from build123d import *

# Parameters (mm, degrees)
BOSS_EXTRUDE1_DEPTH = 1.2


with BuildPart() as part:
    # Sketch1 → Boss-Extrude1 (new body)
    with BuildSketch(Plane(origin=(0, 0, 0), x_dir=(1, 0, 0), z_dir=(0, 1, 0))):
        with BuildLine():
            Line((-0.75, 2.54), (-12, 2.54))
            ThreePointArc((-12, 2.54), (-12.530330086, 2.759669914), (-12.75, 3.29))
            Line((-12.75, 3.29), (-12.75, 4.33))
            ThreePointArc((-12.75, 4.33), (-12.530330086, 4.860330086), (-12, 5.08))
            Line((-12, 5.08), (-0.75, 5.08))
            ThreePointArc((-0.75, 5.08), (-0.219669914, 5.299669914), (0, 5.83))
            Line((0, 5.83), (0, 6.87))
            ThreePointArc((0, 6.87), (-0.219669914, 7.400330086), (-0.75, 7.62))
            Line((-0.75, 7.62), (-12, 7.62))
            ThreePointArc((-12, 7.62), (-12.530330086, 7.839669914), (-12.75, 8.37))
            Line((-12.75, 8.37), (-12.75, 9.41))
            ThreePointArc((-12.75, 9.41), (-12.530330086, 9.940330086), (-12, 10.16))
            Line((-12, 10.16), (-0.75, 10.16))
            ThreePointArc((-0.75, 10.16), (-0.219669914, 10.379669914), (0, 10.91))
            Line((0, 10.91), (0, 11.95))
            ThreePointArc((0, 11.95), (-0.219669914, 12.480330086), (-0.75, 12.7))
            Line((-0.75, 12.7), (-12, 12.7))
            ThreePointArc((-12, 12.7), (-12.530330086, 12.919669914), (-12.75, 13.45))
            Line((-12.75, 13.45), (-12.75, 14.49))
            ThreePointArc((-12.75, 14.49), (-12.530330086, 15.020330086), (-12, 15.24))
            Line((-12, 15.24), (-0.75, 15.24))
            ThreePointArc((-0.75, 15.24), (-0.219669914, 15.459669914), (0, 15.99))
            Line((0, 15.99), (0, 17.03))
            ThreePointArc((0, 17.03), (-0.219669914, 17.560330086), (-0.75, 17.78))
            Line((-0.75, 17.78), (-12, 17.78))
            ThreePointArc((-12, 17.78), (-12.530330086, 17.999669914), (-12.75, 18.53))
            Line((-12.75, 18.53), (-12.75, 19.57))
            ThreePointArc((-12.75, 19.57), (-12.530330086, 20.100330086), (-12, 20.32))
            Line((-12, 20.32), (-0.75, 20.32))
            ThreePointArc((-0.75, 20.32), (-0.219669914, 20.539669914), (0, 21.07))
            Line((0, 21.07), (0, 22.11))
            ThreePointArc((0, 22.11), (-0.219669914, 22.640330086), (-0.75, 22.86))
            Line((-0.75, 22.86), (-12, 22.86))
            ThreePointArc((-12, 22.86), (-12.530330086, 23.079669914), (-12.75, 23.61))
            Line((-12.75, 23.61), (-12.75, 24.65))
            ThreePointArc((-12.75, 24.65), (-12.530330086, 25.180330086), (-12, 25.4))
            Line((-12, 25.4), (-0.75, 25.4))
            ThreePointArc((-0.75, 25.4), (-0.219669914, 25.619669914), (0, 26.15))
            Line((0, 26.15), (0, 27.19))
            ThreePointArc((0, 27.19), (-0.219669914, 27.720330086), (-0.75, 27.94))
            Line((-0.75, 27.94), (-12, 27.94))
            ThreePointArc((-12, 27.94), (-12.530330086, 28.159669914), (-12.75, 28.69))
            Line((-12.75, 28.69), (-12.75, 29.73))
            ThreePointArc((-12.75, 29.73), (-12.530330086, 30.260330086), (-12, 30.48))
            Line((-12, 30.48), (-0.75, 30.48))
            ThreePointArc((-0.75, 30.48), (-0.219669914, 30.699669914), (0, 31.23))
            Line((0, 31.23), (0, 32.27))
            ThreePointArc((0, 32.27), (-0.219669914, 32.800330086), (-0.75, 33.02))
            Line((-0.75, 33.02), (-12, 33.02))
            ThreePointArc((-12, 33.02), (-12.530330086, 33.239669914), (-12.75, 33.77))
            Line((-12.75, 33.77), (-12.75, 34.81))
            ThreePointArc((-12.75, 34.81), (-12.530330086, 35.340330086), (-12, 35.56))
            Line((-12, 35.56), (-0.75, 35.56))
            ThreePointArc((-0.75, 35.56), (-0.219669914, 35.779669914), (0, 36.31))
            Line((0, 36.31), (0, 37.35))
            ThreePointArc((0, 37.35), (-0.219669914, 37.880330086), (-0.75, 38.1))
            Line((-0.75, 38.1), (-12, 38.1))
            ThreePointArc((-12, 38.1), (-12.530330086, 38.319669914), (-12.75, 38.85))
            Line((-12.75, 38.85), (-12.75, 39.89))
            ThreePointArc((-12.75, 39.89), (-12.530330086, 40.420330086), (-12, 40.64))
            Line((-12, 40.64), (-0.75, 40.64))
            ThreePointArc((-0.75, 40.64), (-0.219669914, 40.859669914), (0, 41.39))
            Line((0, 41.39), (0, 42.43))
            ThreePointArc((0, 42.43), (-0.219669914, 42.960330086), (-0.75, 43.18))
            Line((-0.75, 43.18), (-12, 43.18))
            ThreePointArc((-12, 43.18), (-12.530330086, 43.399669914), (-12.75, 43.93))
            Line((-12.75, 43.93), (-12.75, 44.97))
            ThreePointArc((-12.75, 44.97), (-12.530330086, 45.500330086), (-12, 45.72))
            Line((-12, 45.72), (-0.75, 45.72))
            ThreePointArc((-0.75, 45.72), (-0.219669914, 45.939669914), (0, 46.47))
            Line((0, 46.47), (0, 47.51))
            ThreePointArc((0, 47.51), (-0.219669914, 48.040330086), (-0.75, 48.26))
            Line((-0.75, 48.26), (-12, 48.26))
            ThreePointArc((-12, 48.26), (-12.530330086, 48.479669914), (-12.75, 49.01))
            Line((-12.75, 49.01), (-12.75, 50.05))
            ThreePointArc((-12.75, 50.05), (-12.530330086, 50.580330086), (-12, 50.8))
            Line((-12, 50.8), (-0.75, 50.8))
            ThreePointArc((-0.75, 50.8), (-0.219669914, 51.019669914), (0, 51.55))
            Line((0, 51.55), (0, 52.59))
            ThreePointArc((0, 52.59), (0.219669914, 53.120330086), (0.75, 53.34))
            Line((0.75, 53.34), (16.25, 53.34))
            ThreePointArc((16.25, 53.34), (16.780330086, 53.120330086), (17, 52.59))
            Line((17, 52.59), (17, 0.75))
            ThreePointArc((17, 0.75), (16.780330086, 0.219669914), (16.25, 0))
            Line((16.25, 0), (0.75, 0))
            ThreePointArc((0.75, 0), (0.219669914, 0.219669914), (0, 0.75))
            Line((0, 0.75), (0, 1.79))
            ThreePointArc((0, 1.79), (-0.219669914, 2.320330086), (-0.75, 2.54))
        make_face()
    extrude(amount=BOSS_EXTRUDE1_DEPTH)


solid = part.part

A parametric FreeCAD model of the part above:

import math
import FreeCAD as App
import Part
import Sketcher

V = App.Vector

doc = App.newDocument("Part")
body = doc.addObject("PartDesign::Body", "Body")

sketch1 = body.newObject("Sketcher::SketchObject", "Sketch")
sketch1.AttachmentSupport = (doc.getObject("XZ_Plane"), [""])
sketch1.MapMode = "FlatFace"
sketch1.addGeometry([
    Part.LineSegment(V(-12, -2.5, 0), V(-0.8, -2.5, 0)),
    Part.ArcOfCircle(Part.Circle(V(-0.8, -1.8, 0), V(0, 0, 1), 0.8), math.radians(-90), math.radians(0)),
    Part.LineSegment(V(0, -1.8, 0), V(0, -0.8, 0)),
    Part.ArcOfCircle(Part.Circle(V(0.8, -0.8, 0), V(0, 0, 1), 0.8), math.radians(90), math.radians(180)),
    Part.LineSegment(V(0.8, 0, 0), V(16.2, 0, 0)),
    Part.ArcOfCircle(Part.Circle(V(16.2, -0.8, 0), V(0, 0, 1), 0.8), math.radians(0), math.radians(90)),
    Part.LineSegment(V(17, -0.8, 0), V(17, -52.6, 0)),
    Part.ArcOfCircle(Part.Circle(V(16.2, -52.6, 0), V(0, 0, 1), 0.8), math.radians(-90), math.radians(0)),
    Part.LineSegment(V(16.2, -53.3, 0), V(0.8, -53.3, 0)),
    Part.ArcOfCircle(Part.Circle(V(0.8, -52.6, 0), V(0, 0, 1), 0.8), math.radians(180), math.radians(270)),
    Part.LineSegment(V(0, -52.6, 0), V(0, -51.5, 0)),
    Part.ArcOfCircle(Part.Circle(V(-0.8, -51.5, 0), V(0, 0, 1), 0.8), math.radians(0), math.radians(90)),
    Part.LineSegment(V(-0.8, -50.8, 0), V(-12, -50.8, 0)),
    Part.ArcOfCircle(Part.Circle(V(-12, -50, 0), V(0, 0, 1), 0.8), math.radians(180), math.radians(270)),
    Part.LineSegment(V(-12.8, -50, 0), V(-12.8, -49, 0)),
    Part.ArcOfCircle(Part.Circle(V(-12, -49, 0), V(0, 0, 1), 0.8), math.radians(90), math.radians(180)),
    Part.LineSegment(V(-12, -48.3, 0), V(-0.8, -48.3, 0)),
    Part.ArcOfCircle(Part.Circle(V(-0.8, -47.5, 0), V(0, 0, 1), 0.8), math.radians(-90), math.radians(0)),
    Part.LineSegment(V(0, -47.5, 0), V(0, -46.5, 0)),
    Part.ArcOfCircle(Part.Circle(V(-0.8, -46.5, 0), V(0, 0, 1), 0.8), math.radians(0), math.radians(90)),
    Part.LineSegment(V(-0.8, -45.7, 0), V(-12, -45.7, 0)),
    Part.ArcOfCircle(Part.Circle(V(-12, -45, 0), V(0, 0, 1), 0.8), math.radians(180), math.radians(270)),
    Part.LineSegment(V(-12.8, -45, 0), V(-12.8, -43.9, 0)),
    Part.ArcOfCircle(Part.Circle(V(-12, -43.9, 0), V(0, 0, 1), 0.8), math.radians(90), math.radians(180)),
    Part.LineSegment(V(-12, -43.2, 0), V(-0.8, -43.2, 0)),
    Part.ArcOfCircle(Part.Circle(V(-0.8, -42.4, 0), V(0, 0, 1), 0.8), math.radians(-90), math.radians(0)),
    Part.LineSegment(V(0, -42.4, 0), V(0, -41.4, 0)),
    Part.ArcOfCircle(Part.Circle(V(-0.8, -41.4, 0), V(0, 0, 1), 0.8), math.radians(0), math.radians(90)),
    Part.LineSegment(V(-0.8, -40.6, 0), V(-12, -40.6, 0)),
    Part.ArcOfCircle(Part.Circle(V(-12, -39.9, 0), V(0, 0, 1), 0.8), math.radians(180), math.radians(270)),
    Part.LineSegment(V(-12.8, -39.9, 0), V(-12.8, -38.9, 0)),
    Part.ArcOfCircle(Part.Circle(V(-12, -38.9, 0), V(0, 0, 1), 0.8), math.radians(90), math.radians(180)),
    Part.LineSegment(V(-12, -38.1, 0), V(-0.8, -38.1, 0)),
    Part.ArcOfCircle(Part.Circle(V(-0.8, -37.4, 0), V(0, 0, 1), 0.8), math.radians(-90), math.radians(0)),
    Part.LineSegment(V(0, -37.4, 0), V(0, -36.3, 0)),
    Part.ArcOfCircle(Part.Circle(V(-0.8, -36.3, 0), V(0, 0, 1), 0.8), math.radians(0), math.radians(90)),
    Part.LineSegment(V(-0.8, -35.6, 0), V(-12, -35.6, 0)),
    Part.ArcOfCircle(Part.Circle(V(-12, -34.8, 0), V(0, 0, 1), 0.8), math.radians(180), math.radians(270)),
    Part.LineSegment(V(-12.8, -34.8, 0), V(-12.8, -33.8, 0)),
    Part.ArcOfCircle(Part.Circle(V(-12, -33.8, 0), V(0, 0, 1), 0.8), math.radians(90), math.radians(180)),
    Part.LineSegment(V(-12, -33, 0), V(-0.8, -33, 0)),
    Part.ArcOfCircle(Part.Circle(V(-0.8, -32.3, 0), V(0, 0, 1), 0.8), math.radians(-90), math.radians(0)),
    Part.LineSegment(V(0, -32.3, 0), V(0, -31.2, 0)),
    Part.ArcOfCircle(Part.Circle(V(-0.8, -31.2, 0), V(0, 0, 1), 0.8), math.radians(0), math.radians(90)),
    Part.LineSegment(V(-0.8, -30.5, 0), V(-12, -30.5, 0)),
    Part.ArcOfCircle(Part.Circle(V(-12, -29.7, 0), V(0, 0, 1), 0.8), math.radians(180), math.radians(270)),
    Part.LineSegment(V(-12.8, -29.7, 0), V(-12.8, -28.7, 0)),
    Part.ArcOfCircle(Part.Circle(V(-12, -28.7, 0), V(0, 0, 1), 0.8), math.radians(90), math.radians(180)),
    Part.LineSegment(V(-12, -27.9, 0), V(-0.8, -27.9, 0)),
    Part.ArcOfCircle(Part.Circle(V(-0.8, -27.2, 0), V(0, 0, 1), 0.8), math.radians(-90), math.radians(0)),
    Part.LineSegment(V(0, -27.2, 0), V(0, -26.1, 0)),
    Part.ArcOfCircle(Part.Circle(V(-0.8, -26.1, 0), V(0, 0, 1), 0.8), math.radians(0), math.radians(90)),
    Part.LineSegment(V(-0.8, -25.4, 0), V(-12, -25.4, 0)),
    Part.ArcOfCircle(Part.Circle(V(-12, -24.6, 0), V(0, 0, 1), 0.8), math.radians(180), math.radians(270)),
    Part.LineSegment(V(-12.8, -24.6, 0), V(-12.8, -23.6, 0)),
    Part.ArcOfCircle(Part.Circle(V(-12, -23.6, 0), V(0, 0, 1), 0.8), math.radians(90), math.radians(180)),
    Part.LineSegment(V(-12, -22.9, 0), V(-0.8, -22.9, 0)),
    Part.ArcOfCircle(Part.Circle(V(-0.8, -22.1, 0), V(0, 0, 1), 0.8), math.radians(-90), math.radians(0)),
    Part.LineSegment(V(0, -22.1, 0), V(0, -21.1, 0)),
    Part.ArcOfCircle(Part.Circle(V(-0.8, -21.1, 0), V(0, 0, 1), 0.8), math.radians(0), math.radians(90)),
    Part.LineSegment(V(-0.8, -20.3, 0), V(-12, -20.3, 0)),
    Part.ArcOfCircle(Part.Circle(V(-12, -19.6, 0), V(0, 0, 1), 0.8), math.radians(180), math.radians(270)),
    Part.LineSegment(V(-12.8, -19.6, 0), V(-12.8, -18.5, 0)),
    Part.ArcOfCircle(Part.Circle(V(-12, -18.5, 0), V(0, 0, 1), 0.8), math.radians(90), math.radians(180)),
    Part.LineSegment(V(-12, -17.8, 0), V(-0.8, -17.8, 0)),
    Part.ArcOfCircle(Part.Circle(V(-0.8, -17, 0), V(0, 0, 1), 0.8), math.radians(-90), math.radians(0)),
    Part.LineSegment(V(0, -17, 0), V(0, -16, 0)),
    Part.ArcOfCircle(Part.Circle(V(-0.8, -16, 0), V(0, 0, 1), 0.8), math.radians(0), math.radians(90)),
    Part.LineSegment(V(-0.8, -15.2, 0), V(-12, -15.2, 0)),
    Part.ArcOfCircle(Part.Circle(V(-12, -14.5, 0), V(0, 0, 1), 0.8), math.radians(180), math.radians(270)),
    Part.LineSegment(V(-12.8, -14.5, 0), V(-12.8, -13.4, 0)),
    Part.ArcOfCircle(Part.Circle(V(-12, -13.4, 0), V(0, 0, 1), 0.8), math.radians(90), math.radians(180)),
    Part.LineSegment(V(-12, -12.7, 0), V(-0.8, -12.7, 0)),
    Part.ArcOfCircle(Part.Circle(V(-0.8, -11.9, 0), V(0, 0, 1), 0.8), math.radians(-90), math.radians(0)),
    Part.LineSegment(V(0, -11.9, 0), V(0, -10.9, 0)),
    Part.ArcOfCircle(Part.Circle(V(-0.8, -10.9, 0), V(0, 0, 1), 0.8), math.radians(0), math.radians(90)),
    Part.LineSegment(V(-0.8, -10.2, 0), V(-12, -10.2, 0)),
    Part.ArcOfCircle(Part.Circle(V(-12, -9.4, 0), V(0, 0, 1), 0.8), math.radians(180), math.radians(270)),
    Part.LineSegment(V(-12.8, -9.4, 0), V(-12.8, -8.4, 0)),
    Part.ArcOfCircle(Part.Circle(V(-12, -8.4, 0), V(0, 0, 1), 0.8), math.radians(90), math.radians(180)),
    Part.LineSegment(V(-12, -7.6, 0), V(-0.8, -7.6, 0)),
    Part.ArcOfCircle(Part.Circle(V(-0.8, -6.9, 0), V(0, 0, 1), 0.8), math.radians(-90), math.radians(0)),
    Part.LineSegment(V(0, -6.9, 0), V(0, -5.8, 0)),
    Part.ArcOfCircle(Part.Circle(V(-0.8, -5.8, 0), V(0, 0, 1), 0.8), math.radians(0), math.radians(90)),
    Part.LineSegment(V(-0.8, -5.1, 0), V(-12, -5.1, 0)),
    Part.ArcOfCircle(Part.Circle(V(-12, -4.3, 0), V(0, 0, 1), 0.8), math.radians(180), math.radians(270)),
    Part.LineSegment(V(-12.8, -4.3, 0), V(-12.8, -3.3, 0)),
    Part.ArcOfCircle(Part.Circle(V(-12, -3.3, 0), V(0, 0, 1), 0.8), math.radians(90), math.radians(180)),
], False)
sketch1.addConstraint([
    Sketcher.Constraint("Tangent", 0, 2, 1, 1),
    Sketcher.Constraint("Tangent", 1, 2, 2, 1),
    Sketcher.Constraint("Tangent", 2, 2, 3, 2),
    Sketcher.Constraint("Tangent", 3, 1, 4, 1),
    Sketcher.Constraint("Tangent", 4, 2, 5, 2),
    Sketcher.Constraint("Tangent", 5, 1, 6, 1),
    Sketcher.Constraint("Tangent", 6, 2, 7, 2),
    Sketcher.Constraint("Tangent", 7, 1, 8, 1),
    Sketcher.Constraint("Tangent", 8, 2, 9, 2),
    Sketcher.Constraint("Tangent", 9, 1, 10, 1),
    Sketcher.Constraint("Tangent", 10, 2, 11, 1),
    Sketcher.Constraint("Tangent", 11, 2, 12, 1),
    Sketcher.Constraint("Tangent", 12, 2, 13, 2),
    Sketcher.Constraint("Tangent", 13, 1, 14, 1),
    Sketcher.Constraint("Tangent", 14, 2, 15, 2),
    Sketcher.Constraint("Tangent", 15, 1, 16, 1),
    Sketcher.Constraint("Tangent", 16, 2, 17, 1),
    Sketcher.Constraint("Tangent", 17, 2, 18, 1),
    Sketcher.Constraint("Tangent", 18, 2, 19, 1),
    Sketcher.Constraint("Tangent", 19, 2, 20, 1),
    Sketcher.Constraint("Tangent", 20, 2, 21, 2),
    Sketcher.Constraint("Tangent", 21, 1, 22, 1),
    Sketcher.Constraint("Tangent", 22, 2, 23, 2),
    Sketcher.Constraint("Tangent", 23, 1, 24, 1),
    Sketcher.Constraint("Tangent", 24, 2, 25, 1),
    Sketcher.Constraint("Tangent", 25, 2, 26, 1),
    Sketcher.Constraint("Tangent", 26, 2, 27, 1),
    Sketcher.Constraint("Tangent", 27, 2, 28, 1),
    Sketcher.Constraint("Tangent", 28, 2, 29, 2),
    Sketcher.Constraint("Tangent", 29, 1, 30, 1),
    Sketcher.Constraint("Tangent", 30, 2, 31, 2),
    Sketcher.Constraint("Tangent", 31, 1, 32, 1),
    Sketcher.Constraint("Tangent", 32, 2, 33, 1),
    Sketcher.Constraint("Tangent", 33, 2, 34, 1),
    Sketcher.Constraint("Tangent", 34, 2, 35, 1),
    Sketcher.Constraint("Tangent", 35, 2, 36, 1),
    Sketcher.Constraint("Tangent", 36, 2, 37, 2),
    Sketcher.Constraint("Tangent", 37, 1, 38, 1),
    Sketcher.Constraint("Tangent", 38, 2, 39, 2),
    Sketcher.Constraint("Tangent", 39, 1, 40, 1),
    Sketcher.Constraint("Tangent", 40, 2, 41, 1),
    Sketcher.Constraint("Tangent", 41, 2, 42, 1),
    Sketcher.Constraint("Tangent", 42, 2, 43, 1),
    Sketcher.Constraint("Tangent", 43, 2, 44, 1),
    Sketcher.Constraint("Tangent", 44, 2, 45, 2),
    Sketcher.Constraint("Tangent", 45, 1, 46, 1),
    Sketcher.Constraint("Tangent", 46, 2, 47, 2),
    Sketcher.Constraint("Tangent", 47, 1, 48, 1),
    Sketcher.Constraint("Tangent", 48, 2, 49, 1),
    Sketcher.Constraint("Tangent", 49, 2, 50, 1),
    Sketcher.Constraint("Tangent", 50, 2, 51, 1),
    Sketcher.Constraint("Tangent", 51, 2, 52, 1),
    Sketcher.Constraint("Tangent", 52, 2, 53, 2),
    Sketcher.Constraint("Tangent", 53, 1, 54, 1),
    Sketcher.Constraint("Tangent", 54, 2, 55, 2),
    Sketcher.Constraint("Tangent", 55, 1, 56, 1),
    Sketcher.Constraint("Tangent", 56, 2, 57, 1),
    Sketcher.Constraint("Tangent", 57, 2, 58, 1),
    Sketcher.Constraint("Tangent", 58, 2, 59, 1),
    Sketcher.Constraint("Tangent", 59, 2, 60, 1),
    Sketcher.Constraint("Tangent", 60, 2, 61, 2),
    Sketcher.Constraint("Tangent", 61, 1, 62, 1),
    Sketcher.Constraint("Tangent", 62, 2, 63, 2),
    Sketcher.Constraint("Tangent", 63, 1, 64, 1),
    Sketcher.Constraint("Tangent", 64, 2, 65, 1),
    Sketcher.Constraint("Tangent", 65, 2, 66, 1),
    Sketcher.Constraint("Tangent", 66, 2, 67, 1),
    Sketcher.Constraint("Tangent", 67, 2, 68, 1),
    Sketcher.Constraint("Tangent", 68, 2, 69, 2),
    Sketcher.Constraint("Tangent", 69, 1, 70, 1),
    Sketcher.Constraint("Tangent", 70, 2, 71, 2),
    Sketcher.Constraint("Tangent", 71, 1, 72, 1),
    Sketcher.Constraint("Tangent", 72, 2, 73, 1),
    Sketcher.Constraint("Tangent", 73, 2, 74, 1),
    Sketcher.Constraint("Tangent", 74, 2, 75, 1),
    Sketcher.Constraint("Tangent", 75, 2, 76, 1),
    Sketcher.Constraint("Tangent", 76, 2, 77, 2),
    Sketcher.Constraint("Tangent", 77, 1, 78, 1),
    Sketcher.Constraint("Tangent", 78, 2, 79, 2),
    Sketcher.Constraint("Tangent", 79, 1, 80, 1),
    Sketcher.Constraint("Tangent", 80, 2, 81, 1),
    Sketcher.Constraint("Tangent", 81, 2, 82, 1),
    Sketcher.Constraint("Tangent", 82, 2, 83, 1),
    Sketcher.Constraint("Tangent", 83, 2, 84, 1),
    Sketcher.Constraint("Tangent", 84, 2, 85, 2),
    Sketcher.Constraint("Tangent", 85, 1, 86, 1),
    Sketcher.Constraint("Tangent", 86, 2, 87, 2),
    Sketcher.Constraint("Tangent", 87, 1, 0, 1),
    Sketcher.Constraint("Horizontal", 0),
    Sketcher.Constraint("Vertical", 2),
    Sketcher.Constraint("Horizontal", 4),
    Sketcher.Constraint("Vertical", 6),
    Sketcher.Constraint("Horizontal", 8),
    Sketcher.Constraint("Vertical", 10),
    Sketcher.Constraint("Horizontal", 12),
    Sketcher.Constraint("Vertical", 14),
    Sketcher.Constraint("Horizontal", 16),
    Sketcher.Constraint("Vertical", 18),
    Sketcher.Constraint("Horizontal", 20),
    Sketcher.Constraint("Vertical", 22),
    Sketcher.Constraint("Horizontal", 24),
    Sketcher.Constraint("Vertical", 26),
    Sketcher.Constraint("Horizontal", 28),
    Sketcher.Constraint("Vertical", 30),
    Sketcher.Constraint("Horizontal", 32),
    Sketcher.Constraint("Vertical", 34),
    Sketcher.Constraint("Horizontal", 36),
    Sketcher.Constraint("Vertical", 38),
    Sketcher.Constraint("Horizontal", 40),
    Sketcher.Constraint("Vertical", 42),
    Sketcher.Constraint("Horizontal", 44),
    Sketcher.Constraint("Vertical", 46),
    Sketcher.Constraint("Horizontal", 48),
    Sketcher.Constraint("Vertical", 50),
    Sketcher.Constraint("Horizontal", 52),
    Sketcher.Constraint("Vertical", 54),
    Sketcher.Constraint("Horizontal", 56),
    Sketcher.Constraint("Vertical", 58),
    Sketcher.Constraint("Horizontal", 60),
    Sketcher.Constraint("Vertical", 62),
    Sketcher.Constraint("Horizontal", 64),
    Sketcher.Constraint("Vertical", 66),
    Sketcher.Constraint("Horizontal", 68),
    Sketcher.Constraint("Vertical", 70),
    Sketcher.Constraint("Horizontal", 72),
    Sketcher.Constraint("Vertical", 74),
    Sketcher.Constraint("Horizontal", 76),
    Sketcher.Constraint("Vertical", 78),
    Sketcher.Constraint("Horizontal", 80),
    Sketcher.Constraint("Vertical", 82),
    Sketcher.Constraint("Horizontal", 84),
    Sketcher.Constraint("Vertical", 86),
    Sketcher.Constraint("Equal", 1, 3),
    Sketcher.Constraint("Equal", 3, 5),
    Sketcher.Constraint("Equal", 5, 7),
    Sketcher.Constraint("Equal", 7, 9),
    Sketcher.Constraint("Equal", 9, 11),
    Sketcher.Constraint("Equal", 11, 13),
    Sketcher.Constraint("Equal", 13, 15),
    Sketcher.Constraint("Equal", 15, 17),
    Sketcher.Constraint("Equal", 17, 19),
    Sketcher.Constraint("Equal", 19, 21),
    Sketcher.Constraint("Equal", 21, 23),
    Sketcher.Constraint("Equal", 23, 25),
    Sketcher.Constraint("Equal", 25, 27),
    Sketcher.Constraint("Equal", 27, 29),
    Sketcher.Constraint("Equal", 29, 31),
    Sketcher.Constraint("Equal", 31, 33),
    Sketcher.Constraint("Equal", 33, 35),
    Sketcher.Constraint("Equal", 35, 37),
    Sketcher.Constraint("Equal", 37, 39),
    Sketcher.Constraint("Equal", 39, 41),
    Sketcher.Constraint("Equal", 41, 43),
    Sketcher.Constraint("Equal", 43, 45),
    Sketcher.Constraint("Equal", 45, 47),
    Sketcher.Constraint("Equal", 47, 49),
    Sketcher.Constraint("Equal", 49, 51),
    Sketcher.Constraint("Equal", 51, 53),
    Sketcher.Constraint("Equal", 53, 55),
    Sketcher.Constraint("Equal", 55, 57),
    Sketcher.Constraint("Equal", 57, 59),
    Sketcher.Constraint("Equal", 59, 61),
    Sketcher.Constraint("Equal", 61, 63),
    Sketcher.Constraint("Equal", 63, 65),
    Sketcher.Constraint("Equal", 65, 67),
    Sketcher.Constraint("Equal", 67, 69),
    Sketcher.Constraint("Equal", 69, 71),
    Sketcher.Constraint("Equal", 71, 73),
    Sketcher.Constraint("Equal", 73, 75),
    Sketcher.Constraint("Equal", 75, 77),
    Sketcher.Constraint("Equal", 77, 79),
    Sketcher.Constraint("Equal", 79, 81),
    Sketcher.Constraint("Equal", 81, 83),
    Sketcher.Constraint("Equal", 83, 85),
    Sketcher.Constraint("Equal", 85, 87),
    Sketcher.Constraint("PointOnObject", 1, 2, -2),
    Sketcher.Constraint("PointOnObject", 3, 1, -1),
    Sketcher.Constraint("PointOnObject", 9, 1, -2),
    Sketcher.Constraint("PointOnObject", 17, 2, -2),
    Sketcher.Constraint("PointOnObject", 25, 2, -2),
    Sketcher.Constraint("PointOnObject", 33, 2, -2),
    Sketcher.Constraint("PointOnObject", 41, 2, -2),
    Sketcher.Constraint("PointOnObject", 49, 2, -2),
    Sketcher.Constraint("PointOnObject", 57, 2, -2),
    Sketcher.Constraint("PointOnObject", 65, 2, -2),
    Sketcher.Constraint("PointOnObject", 73, 2, -2),
    Sketcher.Constraint("PointOnObject", 81, 2, -2),
    Sketcher.Constraint("Vertical", 15, 3, 21, 3),
    Sketcher.Constraint("Vertical", 23, 3, 29, 3),
    Sketcher.Constraint("Vertical", 31, 3, 37, 3),
    Sketcher.Constraint("Vertical", 39, 3, 45, 3),
    Sketcher.Constraint("Vertical", 47, 3, 53, 3),
    Sketcher.Constraint("Vertical", 55, 3, 61, 3),
    Sketcher.Constraint("Vertical", 63, 3, 69, 3),
    Sketcher.Constraint("Vertical", 71, 3, 77, 3),
    Sketcher.Constraint("Vertical", 79, 3, 85, 3),
    Sketcher.Constraint("Equal", 2, 10),
    Sketcher.Constraint("Equal", 10, 14),
    Sketcher.Constraint("Equal", 14, 18),
    Sketcher.Constraint("Equal", 18, 22),
    Sketcher.Constraint("Equal", 22, 26),
    Sketcher.Constraint("Equal", 26, 30),
    Sketcher.Constraint("Equal", 30, 34),
    Sketcher.Constraint("Equal", 34, 38),
    Sketcher.Constraint("Equal", 38, 42),
    Sketcher.Constraint("Equal", 42, 46),
    Sketcher.Constraint("Equal", 46, 50),
    Sketcher.Constraint("Equal", 50, 54),
    Sketcher.Constraint("Equal", 54, 58),
    Sketcher.Constraint("Equal", 58, 62),
    Sketcher.Constraint("Equal", 62, 66),
    Sketcher.Constraint("Equal", 66, 70),
    Sketcher.Constraint("Equal", 70, 74),
    Sketcher.Constraint("Equal", 74, 78),
    Sketcher.Constraint("Equal", 78, 82),
    Sketcher.Constraint("Equal", 82, 86),
    Sketcher.Constraint("Radius", 1, 0.75),
    Sketcher.Constraint("DistanceX", 4, 1, 4, 2, 15.5),
    Sketcher.Constraint("DistanceX", 13, 3, -1, 1, 12.0),
    Sketcher.Constraint("DistanceY", 2, 1, 2, 2, 1.04),
])
pad1 = body.newObject("PartDesign::Pad", "Pad")
pad1.Profile = sketch1
pad1.Length = 1.2
pad1.Reversed = True

doc.recompute()
